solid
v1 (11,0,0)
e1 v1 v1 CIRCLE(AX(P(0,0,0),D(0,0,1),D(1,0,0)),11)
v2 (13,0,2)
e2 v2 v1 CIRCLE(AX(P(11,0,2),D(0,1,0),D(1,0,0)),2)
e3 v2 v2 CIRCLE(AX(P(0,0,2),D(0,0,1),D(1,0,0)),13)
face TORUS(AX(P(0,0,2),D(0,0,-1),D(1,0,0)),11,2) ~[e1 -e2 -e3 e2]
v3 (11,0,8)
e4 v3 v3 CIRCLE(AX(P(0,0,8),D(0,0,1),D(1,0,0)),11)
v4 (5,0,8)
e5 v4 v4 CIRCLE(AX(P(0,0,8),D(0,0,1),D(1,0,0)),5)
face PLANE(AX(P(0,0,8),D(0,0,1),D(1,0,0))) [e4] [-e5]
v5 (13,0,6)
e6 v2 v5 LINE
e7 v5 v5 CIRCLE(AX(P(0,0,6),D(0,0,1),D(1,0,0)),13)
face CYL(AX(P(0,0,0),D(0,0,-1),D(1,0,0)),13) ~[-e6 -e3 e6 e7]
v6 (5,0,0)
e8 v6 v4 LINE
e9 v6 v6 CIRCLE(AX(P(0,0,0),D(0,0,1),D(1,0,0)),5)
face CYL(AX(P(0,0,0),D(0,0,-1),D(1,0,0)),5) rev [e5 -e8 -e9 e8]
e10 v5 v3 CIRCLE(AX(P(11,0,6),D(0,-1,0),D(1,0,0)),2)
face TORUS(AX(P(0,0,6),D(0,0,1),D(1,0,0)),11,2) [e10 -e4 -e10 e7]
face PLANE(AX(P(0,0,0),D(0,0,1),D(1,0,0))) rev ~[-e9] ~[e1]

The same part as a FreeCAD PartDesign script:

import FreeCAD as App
import Part
import Sketcher
Q = App.Units.Quantity


def edges_at(feature, points):
    """Names of the edges that pass closest to the given points."""
    edges = feature.Shape.Edges
    near = lambda p: min(range(len(edges)), key=lambda i: edges[i].distToShape(Part.Vertex(*p))[0])
    return sorted({f"Edge{near(p) + 1}" for p in points})

doc = App.newDocument("Part")
params = doc.addObject("Spreadsheet::Sheet", "Params")
for row, (alias, value) in enumerate([
    ("sketch1_diameter", "26 mm"),
    ("sketch1_diameter2", "10 mm"),
    ("pad1_length", "8 mm"),
    ("fillet_radius", "2 mm"),
], start=1):
    params.set(f"A{row}", alias)
    params.set(f"B{row}", "=" + value)
    params.setAlias(f"B{row}", alias)

body = doc.addObject("PartDesign::Body", "Body")

# Sketch on XY plane
sketch1 = body.newObject("Sketcher::SketchObject", "Sketch")
sketch1.AttachmentSupport = (doc.getObject("XY_Plane"), [""])
sketch1.MapMode = "FlatFace"
sketch1.addGeometry(Part.Circle(App.Vector(0, 0, 0), App.Vector(0, 0, 1), 13), False)
sketch1.addGeometry(Part.Circle(App.Vector(0, 0, 0), App.Vector(0, 0, 1), 5), False)
sketch1.addConstraint(Sketcher.Constraint("Coincident", 0, 3, -1, 1))
sketch1.addConstraint(Sketcher.Constraint("Coincident", 1, 3, -1, 1))
sketch1.addConstraint(Sketcher.Constraint("Diameter", 0, Q("26 mm")))
sketch1.addConstraint(Sketcher.Constraint("Diameter", 1, Q("10 mm")))
sketch1.setExpression("Constraints[2]", "Params.sketch1_diameter")
sketch1.setExpression("Constraints[3]", "Params.sketch1_diameter2")
pad1 = body.newObject("PartDesign::Pad", "Pad")
pad1.Profile = sketch1
pad1.setExpression("Length", "Params.pad1_length")
doc.recompute()

fillet = body.newObject("PartDesign::Fillet", "Fillet")
fillet.Base = (pad1, edges_at(pad1, [(-13, 0, 8), (-13, 0, 0)]))
fillet.setExpression("Radius", "Params.fillet_radius")

doc.recompute()
